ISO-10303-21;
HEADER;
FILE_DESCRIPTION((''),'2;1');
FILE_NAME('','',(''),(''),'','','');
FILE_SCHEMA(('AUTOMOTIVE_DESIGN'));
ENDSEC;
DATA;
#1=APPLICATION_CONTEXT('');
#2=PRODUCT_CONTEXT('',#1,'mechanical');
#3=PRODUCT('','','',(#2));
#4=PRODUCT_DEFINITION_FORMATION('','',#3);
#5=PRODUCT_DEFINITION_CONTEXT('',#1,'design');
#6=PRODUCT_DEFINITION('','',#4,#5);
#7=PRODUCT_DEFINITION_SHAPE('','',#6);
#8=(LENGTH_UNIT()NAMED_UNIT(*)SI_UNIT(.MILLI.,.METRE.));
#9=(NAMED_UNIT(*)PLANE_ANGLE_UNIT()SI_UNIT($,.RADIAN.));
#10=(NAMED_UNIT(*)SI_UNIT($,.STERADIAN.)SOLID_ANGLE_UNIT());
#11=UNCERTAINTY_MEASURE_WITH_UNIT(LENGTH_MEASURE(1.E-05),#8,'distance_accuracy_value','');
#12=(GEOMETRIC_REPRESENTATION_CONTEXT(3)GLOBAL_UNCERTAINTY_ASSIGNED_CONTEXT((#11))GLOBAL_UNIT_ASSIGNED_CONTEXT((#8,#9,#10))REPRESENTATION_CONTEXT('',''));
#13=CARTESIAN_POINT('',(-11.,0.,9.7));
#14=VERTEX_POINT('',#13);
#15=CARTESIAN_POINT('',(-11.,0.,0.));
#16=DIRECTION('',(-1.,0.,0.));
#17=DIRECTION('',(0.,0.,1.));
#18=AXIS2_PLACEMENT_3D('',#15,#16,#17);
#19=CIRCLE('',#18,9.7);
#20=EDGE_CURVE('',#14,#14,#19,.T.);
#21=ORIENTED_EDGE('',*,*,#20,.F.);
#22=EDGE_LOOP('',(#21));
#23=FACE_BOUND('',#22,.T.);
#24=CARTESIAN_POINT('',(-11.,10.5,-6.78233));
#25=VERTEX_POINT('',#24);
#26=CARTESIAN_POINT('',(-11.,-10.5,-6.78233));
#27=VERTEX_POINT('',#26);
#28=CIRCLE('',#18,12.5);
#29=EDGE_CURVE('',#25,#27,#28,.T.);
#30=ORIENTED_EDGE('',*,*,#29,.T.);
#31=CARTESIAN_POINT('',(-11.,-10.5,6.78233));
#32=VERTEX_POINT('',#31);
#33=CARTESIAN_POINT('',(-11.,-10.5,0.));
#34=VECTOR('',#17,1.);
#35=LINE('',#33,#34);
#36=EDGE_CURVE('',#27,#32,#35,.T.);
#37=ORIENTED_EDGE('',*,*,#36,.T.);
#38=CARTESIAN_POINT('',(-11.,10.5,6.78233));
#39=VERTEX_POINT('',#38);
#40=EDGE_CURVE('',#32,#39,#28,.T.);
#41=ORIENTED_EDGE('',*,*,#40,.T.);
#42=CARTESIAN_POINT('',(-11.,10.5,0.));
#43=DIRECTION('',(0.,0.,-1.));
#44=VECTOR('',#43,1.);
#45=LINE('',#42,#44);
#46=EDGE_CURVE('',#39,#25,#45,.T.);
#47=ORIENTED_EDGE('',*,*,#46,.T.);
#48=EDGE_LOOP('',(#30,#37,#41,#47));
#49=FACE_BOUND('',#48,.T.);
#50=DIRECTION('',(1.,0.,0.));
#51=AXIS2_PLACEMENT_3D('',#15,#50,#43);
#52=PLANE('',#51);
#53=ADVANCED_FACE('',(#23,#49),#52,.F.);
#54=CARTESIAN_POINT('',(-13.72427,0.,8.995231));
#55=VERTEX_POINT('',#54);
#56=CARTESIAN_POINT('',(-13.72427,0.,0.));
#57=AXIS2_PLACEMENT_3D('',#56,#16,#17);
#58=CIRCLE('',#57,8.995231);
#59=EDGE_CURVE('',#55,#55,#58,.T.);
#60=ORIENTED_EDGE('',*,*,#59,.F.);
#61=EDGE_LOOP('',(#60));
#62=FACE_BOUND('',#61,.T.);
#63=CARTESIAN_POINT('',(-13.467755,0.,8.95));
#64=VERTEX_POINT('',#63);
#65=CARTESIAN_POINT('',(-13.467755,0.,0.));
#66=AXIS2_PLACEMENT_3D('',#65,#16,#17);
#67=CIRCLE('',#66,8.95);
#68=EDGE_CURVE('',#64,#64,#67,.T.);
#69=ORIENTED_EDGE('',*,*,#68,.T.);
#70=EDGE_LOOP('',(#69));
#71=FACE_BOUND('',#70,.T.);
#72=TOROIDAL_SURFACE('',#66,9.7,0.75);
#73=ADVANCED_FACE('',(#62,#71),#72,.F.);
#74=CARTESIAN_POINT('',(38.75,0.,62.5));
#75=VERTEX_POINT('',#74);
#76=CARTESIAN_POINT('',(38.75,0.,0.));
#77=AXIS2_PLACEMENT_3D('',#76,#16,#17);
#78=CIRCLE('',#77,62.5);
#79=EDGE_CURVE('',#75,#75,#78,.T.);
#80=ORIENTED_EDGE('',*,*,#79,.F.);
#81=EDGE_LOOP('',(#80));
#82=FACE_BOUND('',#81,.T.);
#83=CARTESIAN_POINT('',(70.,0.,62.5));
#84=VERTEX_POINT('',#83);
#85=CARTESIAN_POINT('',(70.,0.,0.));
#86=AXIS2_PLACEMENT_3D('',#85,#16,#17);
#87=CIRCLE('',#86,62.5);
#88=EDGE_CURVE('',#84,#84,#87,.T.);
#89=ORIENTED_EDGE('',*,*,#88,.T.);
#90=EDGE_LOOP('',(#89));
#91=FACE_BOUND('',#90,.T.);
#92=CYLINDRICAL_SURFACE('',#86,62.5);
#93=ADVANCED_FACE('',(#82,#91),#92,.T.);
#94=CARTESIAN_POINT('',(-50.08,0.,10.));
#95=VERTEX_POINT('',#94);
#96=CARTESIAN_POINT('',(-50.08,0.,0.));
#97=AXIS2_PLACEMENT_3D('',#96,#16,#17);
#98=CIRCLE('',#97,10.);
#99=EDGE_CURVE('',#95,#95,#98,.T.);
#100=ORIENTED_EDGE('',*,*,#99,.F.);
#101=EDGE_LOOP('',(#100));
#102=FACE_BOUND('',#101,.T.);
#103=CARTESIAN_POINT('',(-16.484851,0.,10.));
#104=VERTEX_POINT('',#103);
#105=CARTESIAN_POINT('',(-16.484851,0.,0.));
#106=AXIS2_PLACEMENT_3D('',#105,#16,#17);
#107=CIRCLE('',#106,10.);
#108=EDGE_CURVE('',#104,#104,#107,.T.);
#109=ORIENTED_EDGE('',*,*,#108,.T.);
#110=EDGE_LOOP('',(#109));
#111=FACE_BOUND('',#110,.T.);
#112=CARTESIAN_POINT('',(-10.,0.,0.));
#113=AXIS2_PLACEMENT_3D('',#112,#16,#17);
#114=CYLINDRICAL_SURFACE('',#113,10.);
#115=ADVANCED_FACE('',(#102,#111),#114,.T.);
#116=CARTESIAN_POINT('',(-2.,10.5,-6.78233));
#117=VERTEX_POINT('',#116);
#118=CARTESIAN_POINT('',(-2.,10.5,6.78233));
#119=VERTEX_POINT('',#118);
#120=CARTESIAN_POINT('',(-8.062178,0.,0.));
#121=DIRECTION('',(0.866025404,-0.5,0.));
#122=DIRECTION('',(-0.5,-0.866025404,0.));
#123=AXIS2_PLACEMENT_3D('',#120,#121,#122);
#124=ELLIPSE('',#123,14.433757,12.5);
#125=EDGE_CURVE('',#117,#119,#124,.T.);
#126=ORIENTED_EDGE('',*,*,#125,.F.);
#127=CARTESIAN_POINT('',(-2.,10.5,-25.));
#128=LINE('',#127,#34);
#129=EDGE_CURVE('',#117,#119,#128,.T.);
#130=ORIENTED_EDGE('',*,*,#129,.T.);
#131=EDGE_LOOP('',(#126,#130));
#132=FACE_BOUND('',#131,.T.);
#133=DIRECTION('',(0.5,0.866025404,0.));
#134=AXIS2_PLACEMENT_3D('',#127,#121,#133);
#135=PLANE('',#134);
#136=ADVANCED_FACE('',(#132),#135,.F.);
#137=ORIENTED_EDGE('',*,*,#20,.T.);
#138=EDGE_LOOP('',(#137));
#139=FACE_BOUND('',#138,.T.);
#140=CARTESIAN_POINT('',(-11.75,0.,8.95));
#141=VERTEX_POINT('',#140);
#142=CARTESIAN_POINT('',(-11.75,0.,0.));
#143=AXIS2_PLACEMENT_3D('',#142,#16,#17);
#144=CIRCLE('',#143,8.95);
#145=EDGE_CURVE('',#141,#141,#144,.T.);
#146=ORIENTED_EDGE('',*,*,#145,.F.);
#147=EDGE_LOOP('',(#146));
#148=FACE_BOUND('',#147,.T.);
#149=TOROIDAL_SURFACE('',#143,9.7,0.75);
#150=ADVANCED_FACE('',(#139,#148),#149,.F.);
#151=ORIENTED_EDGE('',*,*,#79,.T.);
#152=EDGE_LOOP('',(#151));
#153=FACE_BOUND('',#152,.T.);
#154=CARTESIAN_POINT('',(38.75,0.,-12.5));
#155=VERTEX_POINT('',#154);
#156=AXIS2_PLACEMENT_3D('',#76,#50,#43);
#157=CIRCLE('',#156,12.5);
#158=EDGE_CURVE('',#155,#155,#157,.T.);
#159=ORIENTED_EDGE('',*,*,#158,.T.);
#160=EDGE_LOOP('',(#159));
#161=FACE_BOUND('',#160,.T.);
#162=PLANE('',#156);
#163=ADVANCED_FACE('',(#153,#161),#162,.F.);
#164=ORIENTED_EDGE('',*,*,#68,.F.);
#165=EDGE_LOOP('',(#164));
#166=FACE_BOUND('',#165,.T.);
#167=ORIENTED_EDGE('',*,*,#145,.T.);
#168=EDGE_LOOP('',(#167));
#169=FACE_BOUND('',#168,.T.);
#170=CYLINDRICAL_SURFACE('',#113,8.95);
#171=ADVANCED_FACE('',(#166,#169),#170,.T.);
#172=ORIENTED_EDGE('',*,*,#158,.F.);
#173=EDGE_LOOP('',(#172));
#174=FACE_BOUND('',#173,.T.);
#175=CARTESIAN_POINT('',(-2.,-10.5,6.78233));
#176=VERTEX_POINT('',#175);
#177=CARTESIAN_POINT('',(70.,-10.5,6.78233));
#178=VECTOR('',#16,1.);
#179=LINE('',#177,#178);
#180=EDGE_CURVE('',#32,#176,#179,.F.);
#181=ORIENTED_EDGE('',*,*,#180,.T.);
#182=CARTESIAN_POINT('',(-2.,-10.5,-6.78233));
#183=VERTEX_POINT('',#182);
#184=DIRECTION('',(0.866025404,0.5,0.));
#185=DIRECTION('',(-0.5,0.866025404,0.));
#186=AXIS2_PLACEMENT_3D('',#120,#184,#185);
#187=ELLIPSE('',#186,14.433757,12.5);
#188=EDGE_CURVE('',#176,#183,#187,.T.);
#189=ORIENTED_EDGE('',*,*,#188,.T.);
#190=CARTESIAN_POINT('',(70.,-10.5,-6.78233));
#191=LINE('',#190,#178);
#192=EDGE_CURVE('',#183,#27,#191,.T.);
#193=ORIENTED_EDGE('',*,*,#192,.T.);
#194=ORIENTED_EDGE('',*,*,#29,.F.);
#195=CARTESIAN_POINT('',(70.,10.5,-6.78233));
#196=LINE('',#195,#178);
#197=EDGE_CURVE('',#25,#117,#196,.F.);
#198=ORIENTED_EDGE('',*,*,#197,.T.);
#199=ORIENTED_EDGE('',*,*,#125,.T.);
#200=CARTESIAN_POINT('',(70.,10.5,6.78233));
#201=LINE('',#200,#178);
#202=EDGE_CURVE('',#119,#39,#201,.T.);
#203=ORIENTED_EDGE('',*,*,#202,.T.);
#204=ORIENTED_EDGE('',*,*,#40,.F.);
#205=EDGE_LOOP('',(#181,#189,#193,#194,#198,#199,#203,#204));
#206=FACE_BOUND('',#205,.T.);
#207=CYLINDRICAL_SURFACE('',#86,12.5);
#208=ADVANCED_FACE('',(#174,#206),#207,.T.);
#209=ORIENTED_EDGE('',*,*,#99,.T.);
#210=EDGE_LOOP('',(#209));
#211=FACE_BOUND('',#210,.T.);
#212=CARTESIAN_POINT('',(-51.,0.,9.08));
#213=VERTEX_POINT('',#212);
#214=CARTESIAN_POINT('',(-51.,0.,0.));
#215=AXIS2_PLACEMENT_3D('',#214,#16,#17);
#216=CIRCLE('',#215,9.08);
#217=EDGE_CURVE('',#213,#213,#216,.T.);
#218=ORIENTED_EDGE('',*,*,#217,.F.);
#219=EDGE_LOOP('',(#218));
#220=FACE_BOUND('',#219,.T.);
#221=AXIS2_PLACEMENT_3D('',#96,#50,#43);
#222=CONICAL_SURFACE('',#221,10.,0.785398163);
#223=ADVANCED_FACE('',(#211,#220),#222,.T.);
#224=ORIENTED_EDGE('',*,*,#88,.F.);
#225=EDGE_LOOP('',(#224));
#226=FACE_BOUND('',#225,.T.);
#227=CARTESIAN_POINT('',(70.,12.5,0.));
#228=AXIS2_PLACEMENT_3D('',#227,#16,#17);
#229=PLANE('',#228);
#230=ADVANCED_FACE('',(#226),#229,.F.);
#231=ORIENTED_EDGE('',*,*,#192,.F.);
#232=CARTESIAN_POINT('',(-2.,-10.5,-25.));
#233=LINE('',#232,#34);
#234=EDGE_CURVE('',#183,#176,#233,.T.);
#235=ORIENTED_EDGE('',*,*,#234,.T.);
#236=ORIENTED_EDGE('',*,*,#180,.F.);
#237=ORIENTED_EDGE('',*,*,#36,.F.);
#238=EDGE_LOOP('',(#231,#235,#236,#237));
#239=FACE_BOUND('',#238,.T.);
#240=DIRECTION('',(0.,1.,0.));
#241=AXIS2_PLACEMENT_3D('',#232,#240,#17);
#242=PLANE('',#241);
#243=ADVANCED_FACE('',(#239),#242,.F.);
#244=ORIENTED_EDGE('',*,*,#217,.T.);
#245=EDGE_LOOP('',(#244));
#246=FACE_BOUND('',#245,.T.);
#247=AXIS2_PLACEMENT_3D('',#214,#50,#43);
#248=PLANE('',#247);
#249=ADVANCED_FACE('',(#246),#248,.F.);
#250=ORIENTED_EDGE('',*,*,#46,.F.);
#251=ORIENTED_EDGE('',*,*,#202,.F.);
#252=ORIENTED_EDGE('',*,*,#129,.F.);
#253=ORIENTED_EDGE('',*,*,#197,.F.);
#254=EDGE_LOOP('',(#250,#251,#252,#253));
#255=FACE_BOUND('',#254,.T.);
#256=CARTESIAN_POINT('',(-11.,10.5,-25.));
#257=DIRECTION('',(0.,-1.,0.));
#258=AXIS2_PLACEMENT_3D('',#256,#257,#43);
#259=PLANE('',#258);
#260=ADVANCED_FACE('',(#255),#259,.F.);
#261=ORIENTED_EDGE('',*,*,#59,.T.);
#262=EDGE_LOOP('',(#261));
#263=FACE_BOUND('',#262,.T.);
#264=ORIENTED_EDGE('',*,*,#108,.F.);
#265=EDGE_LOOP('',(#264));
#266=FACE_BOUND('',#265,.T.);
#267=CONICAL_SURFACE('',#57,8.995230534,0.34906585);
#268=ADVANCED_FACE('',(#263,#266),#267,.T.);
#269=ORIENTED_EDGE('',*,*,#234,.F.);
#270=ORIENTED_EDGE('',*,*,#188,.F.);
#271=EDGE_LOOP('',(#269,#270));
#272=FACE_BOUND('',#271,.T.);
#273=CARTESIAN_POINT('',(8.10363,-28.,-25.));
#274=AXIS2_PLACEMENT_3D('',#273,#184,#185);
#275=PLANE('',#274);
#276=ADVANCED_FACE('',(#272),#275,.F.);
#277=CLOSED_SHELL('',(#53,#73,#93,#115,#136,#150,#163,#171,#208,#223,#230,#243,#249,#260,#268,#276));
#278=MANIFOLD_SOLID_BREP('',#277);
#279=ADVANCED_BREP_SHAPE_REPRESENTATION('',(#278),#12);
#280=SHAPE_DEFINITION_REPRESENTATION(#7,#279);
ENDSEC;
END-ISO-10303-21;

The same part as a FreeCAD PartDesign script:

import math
import FreeCAD as App
import Part
import Sketcher

V = App.Vector
Q = App.Units.Quantity

doc = App.newDocument("Part")
body = doc.addObject("PartDesign::Body", "Body")

sketch1 = doc.addObject("Sketcher::SketchObject", "Sketch")
body.addObject(sketch1)
sketch1.AttachmentSupport = (doc.XY_Plane, [""])
sketch1.MapMode = "FlatFace"
sketch1.addGeometry(Part.LineSegment(V(-11, 12.5, 0), V(-11, 0, 0)), False)
sketch1.addGeometry(Part.LineSegment(V(-11, 0, 0), V(70, 0, 0)), False)
sketch1.addGeometry(Part.LineSegment(V(70, 0, 0), V(70, 12.5, 0)), False)
sketch1.addGeometry(Part.LineSegment(V(70, 12.5, 0), V(-11, 12.5, 0)), False)
sketch1.addConstraint(Sketcher.Constraint("Coincident", 0, 2, 1, 1))
sketch1.addConstraint(Sketcher.Constraint("Coincident", 1, 2, 2, 1))
sketch1.addConstraint(Sketcher.Constraint("Coincident", 2, 2, 3, 1))
sketch1.addConstraint(Sketcher.Constraint("Coincident", 3, 2, 0, 1))
sketch1.addConstraint(Sketcher.Constraint("Vertical", 0))
sketch1.addConstraint(Sketcher.Constraint("Horizontal", 1))
sketch1.addConstraint(Sketcher.Constraint("Vertical", 2))
sketch1.addConstraint(Sketcher.Constraint("Horizontal", 3))
sketch1.addConstraint(Sketcher.Constraint("PointOnObject", 0, 2, -1))
sketch1.addConstraint(Sketcher.Constraint("DistanceX", 1, 1, 1, 2, Q("81 mm")))
sketch1.addConstraint(Sketcher.Constraint("DistanceY", 0, 2, 0, 1, Q("12.5 mm")))
sketch1.addConstraint(Sketcher.Constraint("DistanceX", 0, 2, -1, 1, Q("11 mm")))
revolution = doc.addObject("PartDesign::Revolution", "Revolution")
body.addObject(revolution)
revolution.Profile = sketch1
revolution.ReferenceAxis = (sketch1, ["H_Axis"])
revolution.Angle = 360

sketch2 = doc.addObject("Sketcher::SketchObject", "Sketch001")
body.addObject(sketch2)
sketch2.AttachmentSupport = (doc.XY_Plane, [""])
sketch2.MapMode = "FlatFace"
sketch2.addGeometry(Part.LineSegment(V(38.75, 62.5, 0), V(38.75, 0, 0)), False)
sketch2.addGeometry(Part.LineSegment(V(38.75, 0, 0), V(70, 0, 0)), False)
sketch2.addGeometry(Part.LineSegment(V(70, 0, 0), V(70, 62.5, 0)), False)
sketch2.addGeometry(Part.LineSegment(V(70, 62.5, 0), V(38.75, 62.5, 0)), False)
sketch2.addConstraint(Sketcher.Constraint("Coincident", 0, 2, 1, 1))
sketch2.addConstraint(Sketcher.Constraint("Coincident", 1, 2, 2, 1))
sketch2.addConstraint(Sketcher.Constraint("Coincident", 2, 2, 3, 1))
sketch2.addConstraint(Sketcher.Constraint("Coincident", 3, 2, 0, 1))
sketch2.addConstraint(Sketcher.Constraint("Vertical", 0))
sketch2.addConstraint(Sketcher.Constraint("Horizontal", 1))
sketch2.addConstraint(Sketcher.Constraint("Vertical", 2))
sketch2.addConstraint(Sketcher.Constraint("Horizontal", 3))
sketch2.addConstraint(Sketcher.Constraint("PointOnObject", 0, 2, -1))
sketch2.addConstraint(Sketcher.Constraint("DistanceY", 0, 2, 0, 1, Q("62.5 mm")))
sketch2.addConstraint(Sketcher.Constraint("DistanceX", -1, 1, 1, 2, Q("70 mm")))
sketch2.addConstraint(Sketcher.Constraint("DistanceX", 1, 1, 1, 2, Q("31.25 mm")))
revolution2 = doc.addObject("PartDesign::Revolution", "Revolution001")
body.addObject(revolution2)
revolution2.Profile = sketch2
revolution2.ReferenceAxis = (sketch2, ["H_Axis"])
revolution2.Angle = 360

sketch3 = doc.addObject("Sketcher::SketchObject", "Sketch002")
body.addObject(sketch3)
sketch3.AttachmentSupport = (doc.XY_Plane, [""])
sketch3.MapMode = "FlatFace"
sketch3.addGeometry(Part.LineSegment(V(-51, 9.08, 0), V(-51, 0, 0)), False)
sketch3.addGeometry(Part.LineSegment(V(-51, 0, 0), V(-10, 0, 0)), False)
sketch3.addGeometry(Part.LineSegment(V(-10, 0, 0), V(-10, 10, 0)), False)
sketch3.addGeometry(Part.LineSegment(V(-10, 10, 0), V(-11, 10, 0)), False)
sketch3.addGeometry(Part.LineSegment(V(-11, 10, 0), V(-11, 9.7, 0)), False)
sketch3.addGeometry(Part.ArcOfCircle(Part.Circle(V(-11.75, 9.7, 0), V(0, 0, 1), 0.75), math.radians(-90), math.radians(0)), False)
sketch3.addGeometry(Part.LineSegment(V(-11.75, 8.95, 0), V(-13.467755, 8.95, 0)), False)
sketch3.addGeometry(Part.ArcOfCircle(Part.Circle(V(-13.467755, 9.7, 0), V(0, 0, 1), 0.75), math.radians(-110), math.radians(-90)), False)
sketch3.addGeometry(Part.LineSegment(V(-13.72427, 8.995231, 0), V(-16.484851, 10, 0)), False)
sketch3.addGeometry(Part.LineSegment(V(-16.484851, 10, 0), V(-50.08, 10, 0)), False)
sketch3.addGeometry(Part.LineSegment(V(-50.08, 10, 0), V(-51, 9.08, 0)), False)
sketch3.addConstraint(Sketcher.Constraint("Coincident", 0, 2, 1, 1))
sketch3.addConstraint(Sketcher.Constraint("Coincident", 1, 2, 2, 1))
sketch3.addConstraint(Sketcher.Constraint("Coincident", 2, 2, 3, 1))
sketch3.addConstraint(Sketcher.Constraint("Coincident", 3, 2, 4, 1))
sketch3.addConstraint(Sketcher.Constraint("Tangent", 4, 2, 5, 2))
sketch3.addConstraint(Sketcher.Constraint("Tangent", 5, 1, 6, 1))
sketch3.addConstraint(Sketcher.Constraint("Tangent", 6, 2, 7, 2))
sketch3.addConstraint(Sketcher.Constraint("Tangent", 7, 1, 8, 1))
sketch3.addConstraint(Sketcher.Constraint("Coincident", 8, 2, 9, 1))
sketch3.addConstraint(Sketcher.Constraint("Coincident", 9, 2, 10, 1))
sketch3.addConstraint(Sketcher.Constraint("Coincident", 10, 2, 0, 1))
sketch3.addConstraint(Sketcher.Constraint("Vertical", 0))
sketch3.addConstraint(Sketcher.Constraint("Horizontal", 1))
sketch3.addConstraint(Sketcher.Constraint("Vertical", 2))
sketch3.addConstraint(Sketcher.Constraint("Horizontal", 3))
sketch3.addConstraint(Sketcher.Constraint("Vertical", 4))
sketch3.addConstraint(Sketcher.Constraint("Horizontal", 6))
sketch3.addConstraint(Sketcher.Constraint("Horizontal", 9))
sketch3.addConstraint(Sketcher.Constraint("Equal", 5, 7))
sketch3.addConstraint(Sketcher.Constraint("PointOnObject", 0, 2, -1))
sketch3.addConstraint(Sketcher.Constraint("Horizontal", 3, 2, 8, 2))
sketch3.addConstraint(Sketcher.Constraint("DistanceX", 1, 1, 1, 2, Q("41 mm")))
sketch3.addConstraint(Sketcher.Constraint("DistanceX", 3, 2, 3, 1, Q("1 mm")))
sketch3.addConstraint(Sketcher.Constraint("DistanceY", 2, 1, 2, 2, Q("10 mm")))
sketch3.addConstraint(Sketcher.Constraint("Angle", 8, Q("160 deg")))
sketch3.addConstraint(Sketcher.Constraint("Angle", 10, Q("-135 deg")))
sketch3.addConstraint(Sketcher.Constraint("Radius", 5, Q("0.75 mm")))
sketch3.addConstraint(Sketcher.Constraint("DistanceY", 4, 2, 4, 1, Q("0.3 mm")))
sketch3.addConstraint(Sketcher.Constraint("DistanceX", 0, 2, -1, 1, Q("51 mm")))
sketch3.addConstraint(Sketcher.Constraint("DistanceY", 0, 2, 0, 1, Q("9.08 mm")))
sketch3.addConstraint(Sketcher.Constraint("DistanceX", 9, 2, 9, 1, Q("33.595149 mm")))
revolution3 = doc.addObject("PartDesign::Revolution", "Revolution002")
body.addObject(revolution3)
revolution3.Profile = sketch3
revolution3.ReferenceAxis = (sketch3, ["H_Axis"])
revolution3.Angle = 360

sketch4 = doc.addObject("Sketcher::SketchObject", "Sketch003")
body.addObject(sketch4)
sketch4.AttachmentSupport = (doc.XY_Plane, [""])
sketch4.MapMode = "FlatFace"
sketch4.addGeometry(Part.LineSegment(V(-67, -28, 0), V(8.10363, -28, 0)), False)
sketch4.addGeometry(Part.LineSegment(V(8.10363, -28, 0), V(-2, -10.5, 0)), False)
sketch4.addGeometry(Part.LineSegment(V(-2, -10.5, 0), V(-11, -10.5, 0)), False)
sketch4.addGeometry(Part.LineSegment(V(-11, -10.5, 0), V(-11, -15.5, 0)), False)
sketch4.addGeometry(Part.LineSegment(V(-11, -15.5, 0), V(-56, -15.5, 0)), False)
sketch4.addGeometry(Part.LineSegment(V(-56, -15.5, 0), V(-56, 15.5, 0)), False)
sketch4.addGeometry(Part.LineSegment(V(-56, 15.5, 0), V(-11, 15.5, 0)), False)
sketch4.addGeometry(Part.LineSegment(V(-11, 15.5, 0), V(-11, 10.5, 0)), False)
sketch4.addGeometry(Part.LineSegment(V(-11, 10.5, 0), V(-2, 10.5, 0)), False)
sketch4.addGeometry(Part.LineSegment(V(-2, 10.5, 0), V(8.10363, 28, 0)), False)
sketch4.addGeometry(Part.LineSegment(V(8.10363, 28, 0), V(-67, 28, 0)), False)
sketch4.addGeometry(Part.LineSegment(V(-67, 28, 0), V(-67, -28, 0)), False)
sketch4.addConstraint(Sketcher.Constraint("Coincident", 0, 2, 1, 1))
sketch4.addConstraint(Sketcher.Constraint("Coincident", 1, 2, 2, 1))
sketch4.addConstraint(Sketcher.Constraint("Coincident", 2, 2, 3, 1))
sketch4.addConstraint(Sketcher.Constraint("Coincident", 3, 2, 4, 1))
sketch4.addConstraint(Sketcher.Constraint("Coincident", 4, 2, 5, 1))
sketch4.addConstraint(Sketcher.Constraint("Coincident", 5, 2, 6, 1))
sketch4.addConstraint(Sketcher.Constraint("Coincident", 6, 2, 7, 1))
sketch4.addConstraint(Sketcher.Constraint("Coincident", 7, 2, 8, 1))
sketch4.addConstraint(Sketcher.Constraint("Coincident", 8, 2, 9, 1))
sketch4.addConstraint(Sketcher.Constraint("Coincident", 9, 2, 10, 1))
sketch4.addConstraint(Sketcher.Constraint("Coincident", 10, 2, 11, 1))
sketch4.addConstraint(Sketcher.Constraint("Coincident", 11, 2, 0, 1))
sketch4.addConstraint(Sketcher.Constraint("Horizontal", 0))
sketch4.addConstraint(Sketcher.Constraint("Horizontal", 2))
sketch4.addConstraint(Sketcher.Constraint("Vertical", 3))
sketch4.addConstraint(Sketcher.Constraint("Horizontal", 4))
sketch4.addConstraint(Sketcher.Constraint("Vertical", 5))
sketch4.addConstraint(Sketcher.Constraint("Horizontal", 6))
sketch4.addConstraint(Sketcher.Constraint("Vertical", 7))
sketch4.addConstraint(Sketcher.Constraint("Horizontal", 8))
sketch4.addConstraint(Sketcher.Constraint("Horizontal", 10))
sketch4.addConstraint(Sketcher.Constraint("Vertical", 11))
sketch4.addConstraint(Sketcher.Constraint("Symmetric", 3, 2, 6, 2, -1))
sketch4.addConstraint(Sketcher.Constraint("Symmetric", 1, 2, 8, 2, -1))
sketch4.addConstraint(Sketcher.Constraint("Symmetric", 0, 2, 9, 2, -1))
sketch4.addConstraint(Sketcher.Constraint("DistanceX", 2, 2, 2, 1, Q("9 mm")))
sketch4.addConstraint(Sketcher.Constraint("DistanceX", 4, 2, 4, 1, Q("45 mm")))
sketch4.addConstraint(Sketcher.Constraint("DistanceY", 3, 2, 3, 1, Q("5 mm")))
sketch4.addConstraint(Sketcher.Constraint("DistanceY", 5, 1, 5, 2, Q("31 mm")))
sketch4.addConstraint(Sketcher.Constraint("DistanceY", 11, 2, 11, 1, Q("56 mm")))
sketch4.addConstraint(Sketcher.Constraint("Angle", 1, Q("120 deg")))
sketch4.addConstraint(Sketcher.Constraint("DistanceX", 1, 2, -1, 1, Q("2 mm")))
sketch4.addConstraint(Sketcher.Constraint("DistanceX", 10, 2, -1, 1, Q("67 mm")))
pocket1 = doc.addObject("PartDesign::Pocket", "Pocket")
body.addObject(pocket1)
pocket1.Profile = sketch4
pocket1.Type = "ThroughAll"
pocket1.Midplane = True

doc.recompute()
